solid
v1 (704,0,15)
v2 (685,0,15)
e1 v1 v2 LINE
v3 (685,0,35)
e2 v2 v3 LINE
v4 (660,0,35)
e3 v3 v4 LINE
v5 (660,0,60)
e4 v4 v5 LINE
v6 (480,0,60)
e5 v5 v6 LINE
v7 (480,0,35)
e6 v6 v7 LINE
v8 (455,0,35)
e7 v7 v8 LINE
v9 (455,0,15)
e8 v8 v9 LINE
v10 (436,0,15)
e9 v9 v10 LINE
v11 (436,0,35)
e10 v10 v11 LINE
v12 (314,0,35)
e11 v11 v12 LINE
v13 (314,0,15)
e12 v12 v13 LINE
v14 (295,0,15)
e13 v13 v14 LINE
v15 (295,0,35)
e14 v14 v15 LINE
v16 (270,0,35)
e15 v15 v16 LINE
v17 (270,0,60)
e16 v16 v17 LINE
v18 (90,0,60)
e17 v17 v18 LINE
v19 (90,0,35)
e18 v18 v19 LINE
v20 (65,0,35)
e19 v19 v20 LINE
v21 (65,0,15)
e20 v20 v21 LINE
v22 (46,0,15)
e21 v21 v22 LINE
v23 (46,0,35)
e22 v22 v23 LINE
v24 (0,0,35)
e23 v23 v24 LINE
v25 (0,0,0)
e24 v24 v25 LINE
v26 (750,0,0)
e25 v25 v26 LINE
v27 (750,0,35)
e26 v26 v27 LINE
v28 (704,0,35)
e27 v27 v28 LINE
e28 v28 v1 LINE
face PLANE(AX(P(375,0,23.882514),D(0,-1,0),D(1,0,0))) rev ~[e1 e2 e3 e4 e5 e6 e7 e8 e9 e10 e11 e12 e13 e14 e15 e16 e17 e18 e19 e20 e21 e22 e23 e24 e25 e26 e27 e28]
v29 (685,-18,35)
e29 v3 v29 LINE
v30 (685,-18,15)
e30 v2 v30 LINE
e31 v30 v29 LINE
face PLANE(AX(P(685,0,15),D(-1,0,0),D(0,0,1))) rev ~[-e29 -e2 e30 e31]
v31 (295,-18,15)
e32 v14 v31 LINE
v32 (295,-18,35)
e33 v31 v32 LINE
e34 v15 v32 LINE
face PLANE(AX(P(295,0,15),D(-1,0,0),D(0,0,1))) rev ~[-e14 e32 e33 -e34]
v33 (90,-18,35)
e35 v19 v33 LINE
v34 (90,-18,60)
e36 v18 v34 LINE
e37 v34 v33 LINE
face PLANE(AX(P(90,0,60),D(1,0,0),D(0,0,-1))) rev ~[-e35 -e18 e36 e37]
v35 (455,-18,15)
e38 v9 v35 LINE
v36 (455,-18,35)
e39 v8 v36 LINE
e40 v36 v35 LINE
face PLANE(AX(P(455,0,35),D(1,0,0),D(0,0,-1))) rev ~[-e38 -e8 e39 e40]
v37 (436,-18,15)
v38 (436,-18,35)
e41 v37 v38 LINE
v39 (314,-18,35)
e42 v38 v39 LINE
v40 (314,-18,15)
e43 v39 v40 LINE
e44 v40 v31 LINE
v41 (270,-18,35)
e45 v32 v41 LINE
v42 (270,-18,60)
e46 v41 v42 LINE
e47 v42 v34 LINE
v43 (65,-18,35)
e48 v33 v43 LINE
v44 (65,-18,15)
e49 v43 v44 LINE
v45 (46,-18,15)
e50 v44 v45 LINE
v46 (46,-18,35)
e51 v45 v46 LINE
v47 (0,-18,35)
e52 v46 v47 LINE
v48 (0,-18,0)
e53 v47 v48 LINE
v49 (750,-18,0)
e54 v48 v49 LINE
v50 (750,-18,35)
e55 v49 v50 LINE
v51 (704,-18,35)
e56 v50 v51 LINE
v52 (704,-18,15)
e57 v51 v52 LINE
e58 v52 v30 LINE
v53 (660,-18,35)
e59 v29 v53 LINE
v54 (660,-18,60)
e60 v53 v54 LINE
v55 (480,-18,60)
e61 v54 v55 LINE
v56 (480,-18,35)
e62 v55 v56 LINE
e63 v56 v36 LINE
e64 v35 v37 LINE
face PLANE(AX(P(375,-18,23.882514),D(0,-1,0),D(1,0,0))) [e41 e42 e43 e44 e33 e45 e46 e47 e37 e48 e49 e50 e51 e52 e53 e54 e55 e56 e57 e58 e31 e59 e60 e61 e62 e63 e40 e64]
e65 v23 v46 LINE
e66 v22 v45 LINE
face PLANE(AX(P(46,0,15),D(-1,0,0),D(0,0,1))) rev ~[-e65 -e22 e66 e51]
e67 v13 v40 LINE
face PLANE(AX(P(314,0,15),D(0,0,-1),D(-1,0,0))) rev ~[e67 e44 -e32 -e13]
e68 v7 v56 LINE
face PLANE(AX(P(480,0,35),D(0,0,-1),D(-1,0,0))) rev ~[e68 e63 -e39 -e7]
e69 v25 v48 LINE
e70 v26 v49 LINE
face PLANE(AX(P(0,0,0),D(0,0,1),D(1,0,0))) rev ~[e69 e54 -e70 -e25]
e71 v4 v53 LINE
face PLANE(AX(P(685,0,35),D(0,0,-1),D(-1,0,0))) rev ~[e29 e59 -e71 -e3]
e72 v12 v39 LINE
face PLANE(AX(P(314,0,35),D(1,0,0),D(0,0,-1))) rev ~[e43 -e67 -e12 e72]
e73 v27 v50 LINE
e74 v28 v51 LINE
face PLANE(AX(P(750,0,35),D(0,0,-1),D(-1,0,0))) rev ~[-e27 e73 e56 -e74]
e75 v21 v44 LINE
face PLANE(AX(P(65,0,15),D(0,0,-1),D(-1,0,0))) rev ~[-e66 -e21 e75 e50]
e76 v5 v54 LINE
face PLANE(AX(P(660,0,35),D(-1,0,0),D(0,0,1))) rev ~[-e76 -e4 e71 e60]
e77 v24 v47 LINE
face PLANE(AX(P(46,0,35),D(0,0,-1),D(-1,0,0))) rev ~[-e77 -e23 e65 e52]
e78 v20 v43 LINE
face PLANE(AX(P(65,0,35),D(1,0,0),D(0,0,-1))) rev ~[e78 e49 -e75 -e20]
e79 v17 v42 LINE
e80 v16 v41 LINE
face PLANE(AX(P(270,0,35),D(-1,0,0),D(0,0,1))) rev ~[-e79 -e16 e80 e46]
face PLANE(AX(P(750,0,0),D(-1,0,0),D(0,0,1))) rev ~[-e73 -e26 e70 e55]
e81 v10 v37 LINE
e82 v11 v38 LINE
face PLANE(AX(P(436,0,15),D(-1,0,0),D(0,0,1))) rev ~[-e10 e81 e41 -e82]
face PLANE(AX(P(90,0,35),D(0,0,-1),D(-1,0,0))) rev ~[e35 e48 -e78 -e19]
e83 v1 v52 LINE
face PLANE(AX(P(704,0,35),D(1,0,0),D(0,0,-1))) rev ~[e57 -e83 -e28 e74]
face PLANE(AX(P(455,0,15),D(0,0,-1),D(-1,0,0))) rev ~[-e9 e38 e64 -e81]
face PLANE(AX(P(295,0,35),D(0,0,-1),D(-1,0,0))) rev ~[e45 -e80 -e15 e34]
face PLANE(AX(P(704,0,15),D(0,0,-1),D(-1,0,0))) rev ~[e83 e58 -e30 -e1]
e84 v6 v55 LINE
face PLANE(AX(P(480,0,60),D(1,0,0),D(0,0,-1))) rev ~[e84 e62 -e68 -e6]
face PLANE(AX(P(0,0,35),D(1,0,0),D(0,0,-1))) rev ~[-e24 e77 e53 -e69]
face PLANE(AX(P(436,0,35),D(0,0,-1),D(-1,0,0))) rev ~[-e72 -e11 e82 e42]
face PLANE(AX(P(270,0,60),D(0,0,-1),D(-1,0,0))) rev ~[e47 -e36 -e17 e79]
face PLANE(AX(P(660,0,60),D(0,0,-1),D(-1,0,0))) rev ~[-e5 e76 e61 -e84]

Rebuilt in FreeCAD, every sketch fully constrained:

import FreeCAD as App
import Part
import Sketcher

V = App.Vector


def add_polygon(sketch, points):
    """Adds a closed chain of lines whose ends are joined by coincident constraints."""
    first, n = sketch.GeometryCount, len(points)
    for a, b in zip(points, points[1:] + points[:1]):
        sketch.addGeometry(Part.LineSegment(App.Vector(*a, 0), App.Vector(*b, 0)), False)
    for i in range(n):
        sketch.addConstraint(Sketcher.Constraint("Coincident", first + i, 2, first + (i + 1) % n, 1))

doc = App.newDocument("Part")
body = doc.addObject("PartDesign::Body", "Body")

sketch1 = body.newObject("Sketcher::SketchObject", "Sketch")
sketch1.AttachmentSupport = (doc.getObject("XZ_Plane"), [""])
sketch1.MapMode = "FlatFace"
add_polygon(sketch1, [(46, 35), (0, 35), (0, 0), (750, 0), (750, 35), (704, 35), (704, 15), (685, 15), (685, 35), (660, 35), (660, 60), (480, 60), (480, 35), (455, 35), (455, 15), (436, 15), (436, 35), (314, 35), (314, 15), (295, 15), (295, 35), (270, 35), (270, 60), (90, 60), (90, 35), (65, 35), (65, 15), (46, 15)])
sketch1.addConstraint(Sketcher.Constraint("Horizontal", 0))
sketch1.addConstraint(Sketcher.Constraint("Vertical", 1))
sketch1.addConstraint(Sketcher.Constraint("Horizontal", 2))
sketch1.addConstraint(Sketcher.Constraint("Vertical", 3))
sketch1.addConstraint(Sketcher.Constraint("Horizontal", 4))
sketch1.addConstraint(Sketcher.Constraint("Vertical", 5))
sketch1.addConstraint(Sketcher.Constraint("Horizontal", 6))
sketch1.addConstraint(Sketcher.Constraint("Vertical", 7))
sketch1.addConstraint(Sketcher.Constraint("Horizontal", 8))
sketch1.addConstraint(Sketcher.Constraint("Vertical", 9))
sketch1.addConstraint(Sketcher.Constraint("Horizontal", 10))
sketch1.addConstraint(Sketcher.Constraint("Vertical", 11))
sketch1.addConstraint(Sketcher.Constraint("Horizontal", 12))
sketch1.addConstraint(Sketcher.Constraint("Vertical", 13))
sketch1.addConstraint(Sketcher.Constraint("Horizontal", 14))
sketch1.addConstraint(Sketcher.Constraint("Vertical", 15))
sketch1.addConstraint(Sketcher.Constraint("Horizontal", 16))
sketch1.addConstraint(Sketcher.Constraint("Vertical", 17))
sketch1.addConstraint(Sketcher.Constraint("Horizontal", 18))
sketch1.addConstraint(Sketcher.Constraint("Vertical", 19))
sketch1.addConstraint(Sketcher.Constraint("Horizontal", 20))
sketch1.addConstraint(Sketcher.Constraint("Vertical", 21))
sketch1.addConstraint(Sketcher.Constraint("Horizontal", 22))
sketch1.addConstraint(Sketcher.Constraint("Vertical", 23))
sketch1.addConstraint(Sketcher.Constraint("Horizontal", 24))
sketch1.addConstraint(Sketcher.Constraint("Vertical", 25))
sketch1.addConstraint(Sketcher.Constraint("Horizontal", 26))
sketch1.addConstraint(Sketcher.Constraint("Vertical", 27))
sketch1.addConstraint(Sketcher.Constraint("Coincident", 1, 2, -1, 1))
sketch1.addConstraint(Sketcher.Constraint("Horizontal", 0, 2, 3, 2))
sketch1.addConstraint(Sketcher.Constraint("Horizontal", 4, 2, 7, 2))
sketch1.addConstraint(Sketcher.Constraint("Horizontal", 8, 2, 11, 2))
sketch1.addConstraint(Sketcher.Constraint("Horizontal", 6, 2, 13, 2))
sketch1.addConstraint(Sketcher.Constraint("Horizontal", 12, 2, 15, 2))
sketch1.addConstraint(Sketcher.Constraint("Horizontal", 14, 2, 17, 2))
sketch1.addConstraint(Sketcher.Constraint("Horizontal", 16, 2, 19, 2))
sketch1.addConstraint(Sketcher.Constraint("Horizontal", 10, 2, 21, 2))
sketch1.addConstraint(Sketcher.Constraint("Horizontal", 20, 2, 23, 2))
sketch1.addConstraint(Sketcher.Constraint("Horizontal", 18, 2, 25, 2))
sketch1.addConstraint(Sketcher.Constraint("Equal", 0, 4))
sketch1.addConstraint(Sketcher.Constraint("Equal", 8, 12))
sketch1.addConstraint(Sketcher.Constraint("Equal", 6, 14))
sketch1.addConstraint(Sketcher.Constraint("Equal", 14, 18))
sketch1.addConstraint(Sketcher.Constraint("Equal", 12, 20))
sketch1.addConstraint(Sketcher.Constraint("Equal", 10, 22))
sketch1.addConstraint(Sketcher.Constraint("Equal", 20, 24))
sketch1.addConstraint(Sketcher.Constraint("Equal", 18, 26))
sketch1.addConstraint(Sketcher.Constraint("Equal", 24, 9))
sketch1.addConstraint(Sketcher.Constraint("DistanceX", 0, 2, 0, 1, 46.0))
sketch1.addConstraint(Sketcher.Constraint("DistanceX", 2, 1, 2, 2, 750.0))
sketch1.addConstraint(Sketcher.Constraint("DistanceX", 6, 2, 6, 1, 19.0))
sketch1.addConstraint(Sketcher.Constraint("DistanceX", 8, 2, 8, 1, 25.0))
sketch1.addConstraint(Sketcher.Constraint("DistanceX", 10, 2, 10, 1, 180.0))
sketch1.addConstraint(Sketcher.Constraint("DistanceY", 1, 2, 1, 1, 35.0))
sketch1.addConstraint(Sketcher.Constraint("DistanceY", 5, 2, 5, 1, 20.0))
pad1 = body.newObject("PartDesign::Pad", "Pad")
pad1.Profile = sketch1
pad1.Length = 18

doc.recompute()
